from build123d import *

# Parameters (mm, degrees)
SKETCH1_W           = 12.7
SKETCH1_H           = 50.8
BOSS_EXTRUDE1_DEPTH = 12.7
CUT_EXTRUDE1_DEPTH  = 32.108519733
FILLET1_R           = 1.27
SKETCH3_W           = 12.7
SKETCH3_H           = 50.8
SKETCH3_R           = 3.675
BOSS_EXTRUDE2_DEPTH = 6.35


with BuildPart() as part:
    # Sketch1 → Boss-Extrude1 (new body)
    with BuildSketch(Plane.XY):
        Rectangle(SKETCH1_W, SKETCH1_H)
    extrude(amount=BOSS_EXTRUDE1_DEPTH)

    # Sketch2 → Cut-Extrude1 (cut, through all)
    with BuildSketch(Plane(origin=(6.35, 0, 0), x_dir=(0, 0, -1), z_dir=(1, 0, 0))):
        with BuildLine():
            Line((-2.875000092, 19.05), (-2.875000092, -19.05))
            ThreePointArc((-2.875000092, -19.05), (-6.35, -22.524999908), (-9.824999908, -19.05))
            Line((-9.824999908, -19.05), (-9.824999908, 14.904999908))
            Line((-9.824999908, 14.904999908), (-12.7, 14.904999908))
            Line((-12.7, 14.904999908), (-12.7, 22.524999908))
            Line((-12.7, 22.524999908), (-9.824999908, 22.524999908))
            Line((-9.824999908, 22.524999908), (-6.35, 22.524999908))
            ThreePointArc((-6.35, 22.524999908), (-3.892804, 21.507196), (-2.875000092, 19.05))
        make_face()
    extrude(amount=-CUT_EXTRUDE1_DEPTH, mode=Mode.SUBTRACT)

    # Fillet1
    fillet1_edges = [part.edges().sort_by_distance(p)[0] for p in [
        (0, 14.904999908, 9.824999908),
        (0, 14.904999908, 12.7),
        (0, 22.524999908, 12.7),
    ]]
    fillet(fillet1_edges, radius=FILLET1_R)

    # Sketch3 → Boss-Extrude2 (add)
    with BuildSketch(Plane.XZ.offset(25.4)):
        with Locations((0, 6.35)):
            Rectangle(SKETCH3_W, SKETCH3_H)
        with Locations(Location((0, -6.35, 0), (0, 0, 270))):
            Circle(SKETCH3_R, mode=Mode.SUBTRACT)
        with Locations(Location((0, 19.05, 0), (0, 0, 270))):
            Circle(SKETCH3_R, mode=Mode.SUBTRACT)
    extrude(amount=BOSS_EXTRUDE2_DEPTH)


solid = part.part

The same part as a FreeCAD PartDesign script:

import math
import FreeCAD as App
import Part
import Sketcher
Q = App.Units.Quantity


def edges_at(feature, points):
    """Names of the edges that pass closest to the given points."""
    edges = feature.Shape.Edges
    near = lambda p: min(range(len(edges)), key=lambda i: edges[i].distToShape(Part.Vertex(*p))[0])
    return sorted({f"Edge{near(p) + 1}" for p in points})


def add_polygon(sketch, points):
    """Adds a closed chain of lines whose ends are joined by coincident constraints."""
    first, n = sketch.GeometryCount, len(points)
    for a, b in zip(points, points[1:] + points[:1]):
        sketch.addGeometry(Part.LineSegment(App.Vector(*a, 0), App.Vector(*b, 0)), False)
    for i in range(n):
        sketch.addConstraint(Sketcher.Constraint("Coincident", first + i, 2, first + (i + 1) % n, 1))

doc = App.newDocument("Part")
params = doc.addObject("Spreadsheet::Sheet", "Params")
for row, (alias, value) in enumerate([
    ("sketch1_height", "2 in"),
    ("sketch1_width", "0.5 in"),
    ("pad1_length", "0.5 in"),
    ("sketch2_width", "1.5 in"),
    ("sketch2_width2", "0.3 in"),
    ("sketch2_height", "0.25 in"),
    ("fillet_radius", "0.05 in"),
    ("sketch3_height", "2 in"),
    ("sketch3_width", "0.5 in"),
    ("pad2_length", "0.25 in"),
], start=1):
    params.set(f"A{row}", alias)
    params.set(f"B{row}", "=" + value)
    params.setAlias(f"B{row}", alias)

body = doc.addObject("PartDesign::Body", "Body")

sketch1 = body.newObject("Sketcher::SketchObject", "Sketch")
sketch1.AttachmentSupport = (doc.getObject("XY_Plane"), [""])
sketch1.MapMode = "FlatFace"
add_polygon(sketch1, [(-6, 25), (-6, -25), (6, -25), (6, 25)])
sketch1.addConstraint([
    Sketcher.Constraint("Vertical", 0),
    Sketcher.Constraint("Horizontal", 1),
    Sketcher.Constraint("Vertical", 2),
    Sketcher.Constraint("Horizontal", 3),
    Sketcher.Constraint("Symmetric", 0, 2, 2, 2, -1, 1),
    Sketcher.Constraint("DistanceY", 0, 2, 0, 1, Q("2 in")),
    Sketcher.Constraint("DistanceX", 1, 1, 1, 2, Q("0.5 in")),
])
sketch1.setExpression("Constraints[9]", "Params.sketch1_height")
sketch1.setExpression("Constraints[10]", "Params.sketch1_width")
pad1 = body.newObject("PartDesign::Pad", "Pad")
pad1.Profile = sketch1
pad1.setExpression("Length", "Params.pad1_length")

sketch2 = body.newObject("Sketcher::SketchObject", "Sketch001")
sketch2.AttachmentSupport = (doc.getObject("YZ_Plane"), [""])
sketch2.MapMode = "FlatFace"
sketch2.AttachmentOffset = App.Placement(App.Vector(0, 0, 0.25 * 25.4), App.Rotation())
sketch2.addGeometry([
    Part.LineSegment(App.Vector(-19.1, 2.9, 0), App.Vector(19.1, 2.9, 0)),
    Part.ArcOfCircle(Part.Circle(App.Vector(19.1, 6.3, 0), App.Vector(0, 0, 1), 3.5), math.radians(-90), math.radians(0)),
    Part.LineSegment(App.Vector(22.5, 6.3, 0), App.Vector(22.5, 12.7, 0)),
    Part.LineSegment(App.Vector(22.5, 12.7, 0), App.Vector(14.9, 12.7, 0)),
    Part.LineSegment(App.Vector(14.9, 12.7, 0), App.Vector(14.9, 9.8, 0)),
    Part.LineSegment(App.Vector(14.9, 9.8, 0), App.Vector(-19.1, 9.8, 0)),
    Part.ArcOfCircle(Part.Circle(App.Vector(-19.1, 6.3, 0), App.Vector(0, 0, 1), 3.5), math.radians(90), math.radians(270)),
], False)
sketch2.addConstraint([
    Sketcher.Constraint("Tangent", 0, 2, 1, 1),
    Sketcher.Constraint("Tangent", 1, 2, 2, 1),
    Sketcher.Constraint("Coincident", 2, 2, 3, 1),
    Sketcher.Constraint("Coincident", 3, 2, 4, 1),
    Sketcher.Constraint("Coincident", 4, 2, 5, 1),
    Sketcher.Constraint("Tangent", 5, 2, 6, 1),
    Sketcher.Constraint("Tangent", 6, 2, 0, 1),
    Sketcher.Constraint("Horizontal", 0),
    Sketcher.Constraint("Vertical", 2),
    Sketcher.Constraint("Horizontal", 3),
    Sketcher.Constraint("Vertical", 4),
    Sketcher.Constraint("Horizontal", 5),
    Sketcher.Constraint("Equal", 1, 6),
    Sketcher.Constraint("DistanceX", 0, 1, 0, 2, Q("1.5 in")),
    Sketcher.Constraint("DistanceX", 3, 2, 3, 1, Q("0.3 in")),
    Sketcher.Constraint("DistanceY", 2, 1, 2, 2, Q("0.25 in")),
    Sketcher.Constraint("DistanceY", -1, 1, 2, 2, Q("0.5 in")),
    Sketcher.Constraint("DistanceX", -1, 1, 1, 3, Q("0.75 in")),
    Sketcher.Constraint("Radius", 1, 3.475),
])
sketch2.setExpression("Constraints[13]", "Params.sketch2_width")
sketch2.setExpression("Constraints[14]", "Params.sketch2_width2")
sketch2.setExpression("Constraints[15]", "Params.sketch2_height")
pocket1 = body.newObject("PartDesign::Pocket", "Pocket")
pocket1.Profile = sketch2
pocket1.Type = "ThroughAll"
doc.recompute()

fillet = body.newObject("PartDesign::Fillet", "Fillet")
fillet.Base = (pocket1, edges_at(pocket1, [(0, 14.905, 9.825), (0, 14.905, 12.7), (0, 22.525, 12.7)]))
fillet.setExpression("Radius", "Params.fillet_radius")

sketch3 = body.newObject("Sketcher::SketchObject", "Sketch002")
sketch3.AttachmentSupport = (doc.getObject("XZ_Plane"), [""])
sketch3.MapMode = "FlatFace"
sketch3.AttachmentOffset = App.Placement(App.Vector(0, 0, 1 * 25.4), App.Rotation())
add_polygon(sketch3, [(-6.3, 31.8), (-6.3, -19.1), (6.3, -19.1), (6.3, 31.8)])
sketch3.addGeometry(Part.Circle(App.Vector(0, -6.3, 0), App.Vector(0, 0, 1), 3.7), False)
sketch3.addGeometry(Part.Circle(App.Vector(0, 19.1, 0), App.Vector(0, 0, 1), 3.7), False)
sketch3.addConstraint([
    Sketcher.Constraint("Vertical", 0),
    Sketcher.Constraint("Horizontal", 1),
    Sketcher.Constraint("Vertical", 2),
    Sketcher.Constraint("Horizontal", 3),
    Sketcher.Constraint("Equal", 4, 5),
    Sketcher.Constraint("PointOnObject", 4, 3, -2),
    Sketcher.Constraint("PointOnObject", 5, 3, -2),
    Sketcher.Constraint("DistanceY", 0, 2, 0, 1, Q("2 in")),
    Sketcher.Constraint("DistanceX", 1, 1, 1, 2, Q("0.5 in")),
    Sketcher.Constraint("DistanceY", 4, 3, 5, 3, Q("1 in")),
    Sketcher.Constraint("DistanceY", 0, 2, 4, 3, Q("0.5 in")),
    Sketcher.Constraint("Diameter", 4, 7.35),
    Sketcher.Constraint("DistanceY", 4, 3, -1, 1, Q("0.25 in")),
    Sketcher.Constraint("DistanceX", 0, 2, -1, 1, Q("0.25 in")),
])
sketch3.setExpression("Constraints[11]", "Params.sketch3_height")
sketch3.setExpression("Constraints[12]", "Params.sketch3_width")
pad2 = body.newObject("PartDesign::Pad", "Pad001")
pad2.Profile = sketch3
pad2.setExpression("Length", "Params.pad2_length")

doc.recompute()
